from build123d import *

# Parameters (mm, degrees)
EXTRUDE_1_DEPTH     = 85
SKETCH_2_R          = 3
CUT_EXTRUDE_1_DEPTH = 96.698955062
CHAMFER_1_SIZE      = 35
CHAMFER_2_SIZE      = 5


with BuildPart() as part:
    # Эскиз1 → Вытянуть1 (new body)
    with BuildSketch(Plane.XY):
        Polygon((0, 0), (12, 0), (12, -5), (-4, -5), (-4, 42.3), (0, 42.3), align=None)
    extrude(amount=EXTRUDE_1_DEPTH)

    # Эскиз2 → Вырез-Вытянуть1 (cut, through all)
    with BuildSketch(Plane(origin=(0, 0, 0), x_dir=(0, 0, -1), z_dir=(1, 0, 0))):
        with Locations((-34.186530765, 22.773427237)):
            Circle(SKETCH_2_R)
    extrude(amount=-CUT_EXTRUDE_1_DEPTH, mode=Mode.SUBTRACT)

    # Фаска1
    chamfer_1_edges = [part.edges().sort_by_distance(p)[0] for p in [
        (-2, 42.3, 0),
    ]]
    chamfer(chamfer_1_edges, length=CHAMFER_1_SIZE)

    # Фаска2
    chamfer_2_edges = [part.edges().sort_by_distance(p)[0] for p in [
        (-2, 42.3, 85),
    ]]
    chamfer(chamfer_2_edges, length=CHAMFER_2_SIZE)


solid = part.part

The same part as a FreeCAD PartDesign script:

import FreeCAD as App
import Part
import Sketcher
Q = App.Units.Quantity


def edges_at(feature, points):
    """Names of the edges that pass closest to the given points."""
    edges = feature.Shape.Edges
    near = lambda p: min(range(len(edges)), key=lambda i: edges[i].distToShape(Part.Vertex(*p))[0])
    return sorted({f"Edge{near(p) + 1}" for p in points})


def add_polygon(sketch, points):
    """Adds a closed chain of lines whose ends are joined by coincident constraints."""
    first, n = sketch.GeometryCount, len(points)
    for a, b in zip(points, points[1:] + points[:1]):
        sketch.addGeometry(Part.LineSegment(App.Vector(*a, 0), App.Vector(*b, 0)), False)
    for i in range(n):
        sketch.addConstraint(Sketcher.Constraint("Coincident", first + i, 2, first + (i + 1) % n, 1))

doc = App.newDocument("Part")
body = doc.addObject("PartDesign::Body", "Body")

sketch1 = body.newObject("Sketcher::SketchObject", "Sketch")
sketch1.AttachmentSupport = (doc.getObject("XY_Plane"), [""])
sketch1.MapMode = "FlatFace"
add_polygon(sketch1, [(12, 0), (0, 0), (0, 42.3), (-4, 42.3), (-4, -5), (12, -5)])
sketch1.addConstraint([
    Sketcher.Constraint("Horizontal", 0),
    Sketcher.Constraint("Vertical", 1),
    Sketcher.Constraint("Horizontal", 2),
    Sketcher.Constraint("Vertical", 3),
    Sketcher.Constraint("Horizontal", 4),
    Sketcher.Constraint("Vertical", 5),
    Sketcher.Constraint("Coincident", 0, 2, -1, 1),
    Sketcher.Constraint("DistanceX", 0, 2, 0, 1, Q("12 mm")),
    Sketcher.Constraint("DistanceX", 2, 2, 2, 1, Q("4 mm")),
    Sketcher.Constraint("DistanceY", 5, 1, 5, 2, Q("5 mm")),
    Sketcher.Constraint("DistanceY", 1, 1, 1, 2, Q("42.3 mm")),
])
pad1 = body.newObject("PartDesign::Pad", "Pad")
pad1.Profile = sketch1
pad1.Length = 85

sketch2 = body.newObject("Sketcher::SketchObject", "Sketch001")
sketch2.AttachmentSupport = (doc.getObject("YZ_Plane"), [""])
sketch2.MapMode = "FlatFace"
sketch2.addGeometry(Part.Circle(App.Vector(22.8, 34.2, 0), App.Vector(0, 0, 1), 3), False)
sketch2.addConstraint([
    Sketcher.Constraint("Diameter", 0, Q("6 mm")),
    Sketcher.Constraint("DistanceY", -1, 1, 0, 3, Q("34.186531 mm")),
    Sketcher.Constraint("DistanceX", -1, 1, 0, 3, Q("22.773427 mm")),
])
pocket1 = body.newObject("PartDesign::Pocket", "Pocket")
pocket1.Profile = sketch2
pocket1.Type = "ThroughAll"
doc.recompute()

chamfer = body.newObject("PartDesign::Chamfer", "Chamfer")
chamfer.Base = (pocket1, edges_at(pocket1, [(-2, 42.3, 0)]))
chamfer.Size = 35
doc.recompute()

chamfer2 = body.newObject("PartDesign::Chamfer", "Chamfer001")
chamfer2.Base = (chamfer, edges_at(chamfer, [(-2, 42.3, 85)]))
chamfer2.Size = 5

doc.recompute()
